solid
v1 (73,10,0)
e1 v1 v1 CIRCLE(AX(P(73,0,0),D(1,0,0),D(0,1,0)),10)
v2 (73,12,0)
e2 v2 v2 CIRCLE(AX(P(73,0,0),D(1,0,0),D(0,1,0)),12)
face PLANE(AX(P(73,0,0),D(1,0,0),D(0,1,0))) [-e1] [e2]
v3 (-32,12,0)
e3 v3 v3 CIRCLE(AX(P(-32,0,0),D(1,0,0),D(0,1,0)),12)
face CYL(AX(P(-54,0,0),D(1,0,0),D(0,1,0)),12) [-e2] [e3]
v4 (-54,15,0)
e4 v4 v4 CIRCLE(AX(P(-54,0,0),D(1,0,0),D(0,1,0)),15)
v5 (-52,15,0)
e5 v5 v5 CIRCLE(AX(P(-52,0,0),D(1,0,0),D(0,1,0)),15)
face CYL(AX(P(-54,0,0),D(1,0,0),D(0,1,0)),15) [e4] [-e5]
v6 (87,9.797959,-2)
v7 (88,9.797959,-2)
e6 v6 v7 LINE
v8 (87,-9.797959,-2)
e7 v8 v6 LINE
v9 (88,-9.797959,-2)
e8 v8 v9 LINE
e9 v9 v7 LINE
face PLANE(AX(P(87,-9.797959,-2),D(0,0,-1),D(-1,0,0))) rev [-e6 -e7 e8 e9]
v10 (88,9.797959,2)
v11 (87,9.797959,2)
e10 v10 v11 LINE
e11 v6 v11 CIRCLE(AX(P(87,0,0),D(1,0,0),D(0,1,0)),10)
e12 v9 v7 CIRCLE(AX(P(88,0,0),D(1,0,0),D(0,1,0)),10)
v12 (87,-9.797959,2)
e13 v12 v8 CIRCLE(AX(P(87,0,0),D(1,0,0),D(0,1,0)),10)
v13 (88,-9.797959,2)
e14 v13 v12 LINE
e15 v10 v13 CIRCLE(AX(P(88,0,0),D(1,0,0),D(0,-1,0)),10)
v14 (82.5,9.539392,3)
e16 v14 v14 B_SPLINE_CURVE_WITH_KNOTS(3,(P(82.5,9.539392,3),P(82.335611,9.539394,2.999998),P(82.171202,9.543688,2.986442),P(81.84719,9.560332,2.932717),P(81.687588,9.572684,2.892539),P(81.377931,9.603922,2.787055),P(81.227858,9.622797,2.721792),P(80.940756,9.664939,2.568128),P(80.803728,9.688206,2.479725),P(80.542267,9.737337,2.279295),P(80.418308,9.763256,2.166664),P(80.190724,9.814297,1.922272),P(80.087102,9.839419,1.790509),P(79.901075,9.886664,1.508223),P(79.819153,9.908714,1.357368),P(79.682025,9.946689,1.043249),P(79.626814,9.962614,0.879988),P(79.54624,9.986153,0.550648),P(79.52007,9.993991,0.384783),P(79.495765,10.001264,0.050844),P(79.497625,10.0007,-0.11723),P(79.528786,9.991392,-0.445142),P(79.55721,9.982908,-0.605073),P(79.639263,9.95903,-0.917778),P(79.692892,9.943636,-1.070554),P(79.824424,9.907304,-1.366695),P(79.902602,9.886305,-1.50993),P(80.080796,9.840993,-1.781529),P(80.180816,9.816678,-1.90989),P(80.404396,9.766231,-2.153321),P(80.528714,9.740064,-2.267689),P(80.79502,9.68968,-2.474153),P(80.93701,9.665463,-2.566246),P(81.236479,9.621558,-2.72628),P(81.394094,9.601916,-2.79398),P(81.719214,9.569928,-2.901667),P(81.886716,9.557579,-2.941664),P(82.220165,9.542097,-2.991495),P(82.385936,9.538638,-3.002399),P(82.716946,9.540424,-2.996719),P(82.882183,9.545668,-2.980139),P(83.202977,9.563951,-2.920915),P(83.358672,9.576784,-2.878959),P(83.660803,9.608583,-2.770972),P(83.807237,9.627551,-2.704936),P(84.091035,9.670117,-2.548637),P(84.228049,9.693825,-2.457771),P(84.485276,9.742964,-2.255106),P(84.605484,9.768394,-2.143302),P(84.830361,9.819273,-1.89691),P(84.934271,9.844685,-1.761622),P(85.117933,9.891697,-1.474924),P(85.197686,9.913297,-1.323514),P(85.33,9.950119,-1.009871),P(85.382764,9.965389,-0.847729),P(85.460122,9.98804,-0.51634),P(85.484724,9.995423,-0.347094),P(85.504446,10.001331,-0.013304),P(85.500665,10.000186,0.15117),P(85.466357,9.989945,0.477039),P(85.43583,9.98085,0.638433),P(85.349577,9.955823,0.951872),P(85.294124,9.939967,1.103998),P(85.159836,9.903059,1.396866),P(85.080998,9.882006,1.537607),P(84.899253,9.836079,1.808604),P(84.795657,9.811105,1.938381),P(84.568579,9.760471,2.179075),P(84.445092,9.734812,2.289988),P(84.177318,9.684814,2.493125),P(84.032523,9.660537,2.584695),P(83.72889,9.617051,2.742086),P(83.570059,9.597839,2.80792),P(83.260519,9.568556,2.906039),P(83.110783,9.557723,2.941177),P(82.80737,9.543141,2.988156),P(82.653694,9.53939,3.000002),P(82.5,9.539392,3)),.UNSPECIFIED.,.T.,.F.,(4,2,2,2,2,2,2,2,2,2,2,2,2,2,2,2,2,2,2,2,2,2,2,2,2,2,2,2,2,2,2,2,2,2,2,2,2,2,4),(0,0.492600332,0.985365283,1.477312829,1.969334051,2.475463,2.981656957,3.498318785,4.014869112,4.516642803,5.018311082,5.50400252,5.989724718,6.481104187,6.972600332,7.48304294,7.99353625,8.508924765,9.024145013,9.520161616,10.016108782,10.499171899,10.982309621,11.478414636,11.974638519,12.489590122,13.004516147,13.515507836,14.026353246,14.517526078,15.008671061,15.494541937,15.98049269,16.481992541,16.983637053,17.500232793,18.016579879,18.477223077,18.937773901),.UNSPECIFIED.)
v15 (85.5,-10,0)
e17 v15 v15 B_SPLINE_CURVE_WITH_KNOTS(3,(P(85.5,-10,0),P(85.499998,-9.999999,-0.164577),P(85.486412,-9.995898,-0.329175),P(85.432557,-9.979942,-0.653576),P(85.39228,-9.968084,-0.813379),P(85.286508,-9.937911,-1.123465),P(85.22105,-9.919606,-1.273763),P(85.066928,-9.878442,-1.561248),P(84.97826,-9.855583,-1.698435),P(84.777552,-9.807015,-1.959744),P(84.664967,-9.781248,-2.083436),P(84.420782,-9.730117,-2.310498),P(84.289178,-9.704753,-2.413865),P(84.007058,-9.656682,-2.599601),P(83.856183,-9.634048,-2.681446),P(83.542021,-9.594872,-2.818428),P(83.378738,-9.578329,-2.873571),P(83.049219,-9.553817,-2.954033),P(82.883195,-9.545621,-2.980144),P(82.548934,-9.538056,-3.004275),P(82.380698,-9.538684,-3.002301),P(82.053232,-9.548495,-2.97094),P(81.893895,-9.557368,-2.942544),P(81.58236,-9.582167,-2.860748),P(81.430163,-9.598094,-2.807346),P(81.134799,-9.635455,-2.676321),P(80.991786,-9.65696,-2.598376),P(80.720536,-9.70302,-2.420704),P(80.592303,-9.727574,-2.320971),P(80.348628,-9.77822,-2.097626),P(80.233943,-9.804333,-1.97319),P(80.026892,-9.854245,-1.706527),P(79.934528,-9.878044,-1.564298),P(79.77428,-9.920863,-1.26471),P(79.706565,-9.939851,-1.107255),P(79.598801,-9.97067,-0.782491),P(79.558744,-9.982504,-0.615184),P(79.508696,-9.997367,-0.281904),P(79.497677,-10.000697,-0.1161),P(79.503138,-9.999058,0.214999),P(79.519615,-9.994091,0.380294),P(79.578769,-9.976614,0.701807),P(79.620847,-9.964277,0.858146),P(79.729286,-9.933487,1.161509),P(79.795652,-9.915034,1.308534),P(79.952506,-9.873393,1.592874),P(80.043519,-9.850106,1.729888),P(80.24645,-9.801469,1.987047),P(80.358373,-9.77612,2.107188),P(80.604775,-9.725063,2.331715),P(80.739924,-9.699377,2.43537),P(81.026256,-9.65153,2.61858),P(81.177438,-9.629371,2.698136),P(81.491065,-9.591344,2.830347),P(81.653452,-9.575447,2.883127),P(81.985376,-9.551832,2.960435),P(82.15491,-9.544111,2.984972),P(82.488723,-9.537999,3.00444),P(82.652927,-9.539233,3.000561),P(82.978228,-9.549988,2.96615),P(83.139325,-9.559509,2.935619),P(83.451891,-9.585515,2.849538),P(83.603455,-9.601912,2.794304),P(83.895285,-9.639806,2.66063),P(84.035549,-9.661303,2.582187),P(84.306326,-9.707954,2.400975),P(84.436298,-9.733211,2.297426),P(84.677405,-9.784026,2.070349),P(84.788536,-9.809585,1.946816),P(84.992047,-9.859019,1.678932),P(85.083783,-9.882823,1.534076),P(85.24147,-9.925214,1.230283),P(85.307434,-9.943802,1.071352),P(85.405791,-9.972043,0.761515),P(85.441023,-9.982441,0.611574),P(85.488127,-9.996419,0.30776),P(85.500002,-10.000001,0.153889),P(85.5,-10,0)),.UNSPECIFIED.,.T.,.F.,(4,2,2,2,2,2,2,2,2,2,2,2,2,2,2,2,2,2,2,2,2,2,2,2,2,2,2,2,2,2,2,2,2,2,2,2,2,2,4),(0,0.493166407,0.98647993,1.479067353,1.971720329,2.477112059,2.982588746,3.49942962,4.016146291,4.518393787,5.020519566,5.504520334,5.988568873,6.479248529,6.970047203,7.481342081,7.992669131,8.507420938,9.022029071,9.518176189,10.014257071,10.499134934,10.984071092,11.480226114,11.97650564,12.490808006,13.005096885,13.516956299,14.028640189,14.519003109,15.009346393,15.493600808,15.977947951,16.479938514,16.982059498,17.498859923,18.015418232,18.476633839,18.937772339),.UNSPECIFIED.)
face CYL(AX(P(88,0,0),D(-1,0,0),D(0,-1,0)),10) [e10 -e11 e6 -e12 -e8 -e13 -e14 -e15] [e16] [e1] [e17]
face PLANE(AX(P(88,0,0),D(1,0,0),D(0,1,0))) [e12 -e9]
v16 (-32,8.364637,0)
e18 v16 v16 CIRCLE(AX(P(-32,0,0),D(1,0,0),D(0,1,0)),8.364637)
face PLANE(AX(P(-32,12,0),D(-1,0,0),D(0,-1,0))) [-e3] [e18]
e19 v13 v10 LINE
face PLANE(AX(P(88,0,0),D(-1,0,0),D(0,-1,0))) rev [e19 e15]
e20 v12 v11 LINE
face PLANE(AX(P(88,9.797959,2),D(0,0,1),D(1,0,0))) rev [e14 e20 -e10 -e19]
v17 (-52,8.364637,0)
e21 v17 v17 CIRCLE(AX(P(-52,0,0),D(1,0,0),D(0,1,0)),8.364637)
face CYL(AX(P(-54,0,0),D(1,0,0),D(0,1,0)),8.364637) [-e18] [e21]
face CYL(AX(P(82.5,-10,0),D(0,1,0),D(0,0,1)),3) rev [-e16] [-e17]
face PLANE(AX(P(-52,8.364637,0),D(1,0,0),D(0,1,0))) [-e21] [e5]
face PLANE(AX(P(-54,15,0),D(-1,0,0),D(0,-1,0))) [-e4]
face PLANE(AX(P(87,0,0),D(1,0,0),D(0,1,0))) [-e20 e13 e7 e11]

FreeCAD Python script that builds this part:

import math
import FreeCAD as App
import Part
import Sketcher
from FreeCAD import Vector
Q = App.Units.Quantity

doc = App.newDocument("Part")
body = doc.addObject("PartDesign::Body", "Body")

# Sketch on XY plane
sketch1 = body.newObject("Sketcher::SketchObject", "Sketch")
sketch1.AttachmentSupport = (doc.getObject("XY_Plane"), [""])
sketch1.MapMode = "FlatFace"
sketch1.addGeometry(Part.LineSegment(Vector(-54, 15, 0), Vector(-54, 0, 0)), False)
sketch1.addGeometry(Part.LineSegment(Vector(-54, 0, 0), Vector(73, 0, 0)), False)
sketch1.addGeometry(Part.LineSegment(Vector(73, 0, 0), Vector(73, 12, 0)), False)
sketch1.addGeometry(Part.LineSegment(Vector(73, 12, 0), Vector(-32, 12, 0)), False)
sketch1.addGeometry(Part.LineSegment(Vector(-32, 12, 0), Vector(-32, 8.4, 0)), False)
sketch1.addGeometry(Part.LineSegment(Vector(-32, 8.4, 0), Vector(-52, 8.4, 0)), False)
sketch1.addGeometry(Part.LineSegment(Vector(-52, 8.4, 0), Vector(-52, 15, 0)), False)
sketch1.addGeometry(Part.LineSegment(Vector(-52, 15, 0), Vector(-54, 15, 0)), False)
sketch1.addConstraint(Sketcher.Constraint("Coincident", 0, 2, 1, 1))
sketch1.addConstraint(Sketcher.Constraint("Coincident", 1, 2, 2, 1))
sketch1.addConstraint(Sketcher.Constraint("Coincident", 2, 2, 3, 1))
sketch1.addConstraint(Sketcher.Constraint("Coincident", 3, 2, 4, 1))
sketch1.addConstraint(Sketcher.Constraint("Coincident", 4, 2, 5, 1))
sketch1.addConstraint(Sketcher.Constraint("Coincident", 5, 2, 6, 1))
sketch1.addConstraint(Sketcher.Constraint("Coincident", 6, 2, 7, 1))
sketch1.addConstraint(Sketcher.Constraint("Coincident", 7, 2, 0, 1))
sketch1.addConstraint(Sketcher.Constraint("Vertical", 0))
sketch1.addConstraint(Sketcher.Constraint("Horizontal", 1))
sketch1.addConstraint(Sketcher.Constraint("Vertical", 2))
sketch1.addConstraint(Sketcher.Constraint("Horizontal", 3))
sketch1.addConstraint(Sketcher.Constraint("Vertical", 4))
sketch1.addConstraint(Sketcher.Constraint("Horizontal", 5))
sketch1.addConstraint(Sketcher.Constraint("Vertical", 6))
sketch1.addConstraint(Sketcher.Constraint("Horizontal", 7))
sketch1.addConstraint(Sketcher.Constraint("PointOnObject", 0, 2, -1))
sketch1.addConstraint(Sketcher.Constraint("DistanceX", 1, 1, 1, 2, Q("127 mm")))
sketch1.addConstraint(Sketcher.Constraint("DistanceX", 3, 2, 3, 1, Q("105 mm")))
sketch1.addConstraint(Sketcher.Constraint("DistanceX", 5, 2, 5, 1, Q("20 mm")))
sketch1.addConstraint(Sketcher.Constraint("DistanceY", 0, 2, 0, 1, Q("15 mm")))
sketch1.addConstraint(Sketcher.Constraint("DistanceY", 2, 1, 2, 2, Q("12 mm")))
sketch1.addConstraint(Sketcher.Constraint("DistanceX", 0, 2, -1, 1, Q("54 mm")))
sketch1.addConstraint(Sketcher.Constraint("DistanceY", 4, 2, 4, 1, Q("3.635363 mm")))
revolution = body.newObject("PartDesign::Revolution", "Revolution")
revolution.Profile = sketch1
revolution.ReferenceAxis = (sketch1, ["H_Axis"])
revolution.Angle = 360

# Sketch on YZ plane
sketch2 = body.newObject("Sketcher::SketchObject", "Sketch001")
sketch2.AttachmentSupport = (doc.getObject("YZ_Plane"), [""])
sketch2.MapMode = "FlatFace"
sketch2.AttachmentOffset = App.Placement(Vector(0, 0, 73), App.Rotation())
sketch2.addGeometry(Part.Circle(Vector(0, 0, 0), Vector(0, 0, 1), 10), False)
sketch2.addConstraint(Sketcher.Constraint("Coincident", 0, 3, -1, 1))
sketch2.addConstraint(Sketcher.Constraint("Diameter", 0, Q("20 mm")))
pad1 = body.newObject("PartDesign::Pad", "Pad")
pad1.Profile = sketch2
pad1.Length = 15

# Sketch on YZ plane
sketch3 = body.newObject("Sketcher::SketchObject", "Sketch002")
sketch3.AttachmentSupport = (doc.getObject("YZ_Plane"), [""])
sketch3.MapMode = "FlatFace"
sketch3.AttachmentOffset = App.Placement(Vector(0, 0, 87), App.Rotation())
sketch3.addGeometry(Part.LineSegment(Vector(-10, -2, 0), Vector(10, -2, 0)), False)
sketch3.addGeometry(Part.ArcOfCircle(Part.Circle(Vector(0, 0, 0), Vector(0, 0, 1), 10), math.radians(-12), math.radians(192)), False)
sketch3.addConstraint(Sketcher.Constraint("Coincident", 0, 1, 1, 2))
sketch3.addConstraint(Sketcher.Constraint("Coincident", 1, 1, 0, 2))
sketch3.addConstraint(Sketcher.Constraint("Horizontal", 0))
sketch3.addConstraint(Sketcher.Constraint("Coincident", 1, 3, -1, 1))
sketch3.addConstraint(Sketcher.Constraint("Radius", 1, Q("10 mm")))
sketch3.addConstraint(Sketcher.Constraint("DistanceY", 0, 1, -1, 1, Q("2 mm")))
pocket1 = body.newObject("PartDesign::Pocket", "Pocket")
pocket1.Profile = sketch3
pocket1.Length = 1
pocket1.Reversed = True

# Sketch on YZ plane
sketch4 = body.newObject("Sketcher::SketchObject", "Sketch003")
sketch4.AttachmentSupport = (doc.getObject("YZ_Plane"), [""])
sketch4.MapMode = "FlatFace"
sketch4.AttachmentOffset = App.Placement(Vector(0, 0, 87), App.Rotation())
sketch4.addGeometry(Part.LineSegment(Vector(-10, 2, 0), Vector(10, 2, 0)), False)
sketch4.addGeometry(Part.ArcOfCircle(Part.Circle(Vector(0, 0, 0), Vector(0, 0, 1), 10), math.radians(12), math.radians(168)), False)
sketch4.addConstraint(Sketcher.Constraint("Coincident", 0, 1, 1, 2))
sketch4.addConstraint(Sketcher.Constraint("Coincident", 1, 1, 0, 2))
sketch4.addConstraint(Sketcher.Constraint("Horizontal", 0))
sketch4.addConstraint(Sketcher.Constraint("Coincident", 1, 3, -1, 1))
sketch4.addConstraint(Sketcher.Constraint("Radius", 1, Q("10 mm")))
sketch4.addConstraint(Sketcher.Constraint("DistanceY", -1, 1, 0, 1, Q("2 mm")))
pad2 = body.newObject("PartDesign::Pad", "Pad001")
pad2.Profile = sketch4
pad2.Length = 1

# Sketch on XY plane
sketch5 = body.newObject("Sketcher::SketchObject", "Sketch004")
sketch5.AttachmentSupport = (doc.getObject("XY_Plane"), [""])
sketch5.MapMode = "FlatFace"
sketch5.addGeometry(Part.LineSegment(Vector(79.5, 10, 0), Vector(79.5, -10, 0)), False)
sketch5.addGeometry(Part.LineSegment(Vector(79.5, -10, 0), Vector(82.5, -10, 0)), False)
sketch5.addGeometry(Part.LineSegment(Vector(82.5, -10, 0), Vector(82.5, 10, 0)), False)
sketch5.addGeometry(Part.LineSegment(Vector(82.5, 10, 0), Vector(79.5, 10, 0)), False)
sketch5.addGeometry(Part.LineSegment(Vector(82.5, -10, 0), Vector(82.5, 10, 0)), True)  # axis
sketch5.addConstraint(Sketcher.Constraint("Coincident", 0, 2, 1, 1))
sketch5.addConstraint(Sketcher.Constraint("Coincident", 1, 2, 2, 1))
sketch5.addConstraint(Sketcher.Constraint("Coincident", 2, 2, 3, 1))
sketch5.addConstraint(Sketcher.Constraint("Coincident", 3, 2, 0, 1))
sketch5.addConstraint(Sketcher.Constraint("Vertical", 0))
sketch5.addConstraint(Sketcher.Constraint("Horizontal", 1))
sketch5.addConstraint(Sketcher.Constraint("Vertical", 2))
sketch5.addConstraint(Sketcher.Constraint("Horizontal", 3))
sketch5.addConstraint(Sketcher.Constraint("Vertical", 4))
sketch5.addConstraint(Sketcher.Constraint("Coincident", 4, 1, 1, 2))
sketch5.addConstraint(Sketcher.Constraint("Horizontal", 3, 2, 4, 2))
sketch5.addConstraint(Sketcher.Constraint("DistanceX", 1, 1, 1, 2, Q("3 mm")))
sketch5.addConstraint(Sketcher.Constraint("DistanceY", 0, 2, 0, 1, Q("20 mm")))
sketch5.addConstraint(Sketcher.Constraint("DistanceY", 0, 2, -1, 1, Q("10 mm")))
sketch5.addConstraint(Sketcher.Constraint("DistanceX", -1, 1, 0, 2, Q("79.5 mm")))
groove = body.newObject("PartDesign::Groove", "Groove")
groove.Profile = sketch5
groove.ReferenceAxis = (sketch5, ["Axis0"])
groove.Angle = 360

doc.recompute()
